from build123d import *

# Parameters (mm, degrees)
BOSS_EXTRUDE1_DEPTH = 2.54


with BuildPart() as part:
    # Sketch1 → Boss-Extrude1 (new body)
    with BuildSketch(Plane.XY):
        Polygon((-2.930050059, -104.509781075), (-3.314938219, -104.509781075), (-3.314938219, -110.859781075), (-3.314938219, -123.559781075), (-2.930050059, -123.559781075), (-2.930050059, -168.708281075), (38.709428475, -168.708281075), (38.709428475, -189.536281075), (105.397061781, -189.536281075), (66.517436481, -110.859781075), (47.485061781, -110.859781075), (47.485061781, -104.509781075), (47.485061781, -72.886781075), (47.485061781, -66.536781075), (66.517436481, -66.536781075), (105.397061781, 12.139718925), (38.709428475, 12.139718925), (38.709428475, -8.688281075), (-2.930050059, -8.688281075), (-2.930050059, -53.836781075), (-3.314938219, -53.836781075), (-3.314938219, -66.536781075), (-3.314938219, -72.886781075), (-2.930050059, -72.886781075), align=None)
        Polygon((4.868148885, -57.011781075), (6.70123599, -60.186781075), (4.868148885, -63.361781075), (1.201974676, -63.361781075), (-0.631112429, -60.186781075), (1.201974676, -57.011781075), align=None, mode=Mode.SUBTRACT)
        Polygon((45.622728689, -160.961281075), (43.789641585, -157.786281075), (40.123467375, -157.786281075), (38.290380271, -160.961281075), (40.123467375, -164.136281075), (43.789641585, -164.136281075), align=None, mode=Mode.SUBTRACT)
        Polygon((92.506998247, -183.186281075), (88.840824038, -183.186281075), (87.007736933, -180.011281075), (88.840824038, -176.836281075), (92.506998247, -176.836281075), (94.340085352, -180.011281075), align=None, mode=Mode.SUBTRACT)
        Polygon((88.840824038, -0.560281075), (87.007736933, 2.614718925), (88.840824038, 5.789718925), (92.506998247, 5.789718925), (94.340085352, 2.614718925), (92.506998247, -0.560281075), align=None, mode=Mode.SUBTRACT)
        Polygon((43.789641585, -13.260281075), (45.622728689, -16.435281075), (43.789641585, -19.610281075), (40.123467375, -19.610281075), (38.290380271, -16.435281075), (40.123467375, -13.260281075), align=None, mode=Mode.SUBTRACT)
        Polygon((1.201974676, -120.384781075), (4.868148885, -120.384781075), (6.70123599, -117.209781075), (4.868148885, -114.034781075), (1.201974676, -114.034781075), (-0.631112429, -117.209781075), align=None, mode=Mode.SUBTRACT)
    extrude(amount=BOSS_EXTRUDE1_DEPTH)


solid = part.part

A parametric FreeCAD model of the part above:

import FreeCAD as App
import Part
import Sketcher
Q = App.Units.Quantity

doc = App.newDocument("Part")
body = doc.addObject("PartDesign::Body", "Body")

# Sketch on XY plane
sketch1 = doc.addObject("Sketcher::SketchObject", "Sketch")
body.addObject(sketch1)
sketch1.AttachmentSupport = (doc.XY_Plane, [""])
sketch1.MapMode = "FlatFace"
sketch1.addGeometry([
    Part.LineSegment(App.Vector(-2.93, -104.51, 0), App.Vector(-3.31, -104.51, 0)),  # 0
    Part.LineSegment(App.Vector(-3.31, -104.51, 0), App.Vector(-3.31, -123.56, 0)),  # 1
    Part.LineSegment(App.Vector(-3.31, -123.56, 0), App.Vector(-2.93, -123.56, 0)),  # 2
    Part.LineSegment(App.Vector(-2.93, -123.56, 0), App.Vector(-2.93, -168.71, 0)),  # 3
    Part.LineSegment(App.Vector(-2.93, -168.71, 0), App.Vector(38.71, -168.71, 0)),  # 4
    Part.LineSegment(App.Vector(38.71, -168.71, 0), App.Vector(38.71, -189.54, 0)),  # 5
    Part.LineSegment(App.Vector(38.71, -189.54, 0), App.Vector(105.4, -189.54, 0)),  # 6
    Part.LineSegment(App.Vector(105.4, -189.54, 0), App.Vector(66.52, -110.86, 0)),  # 7
    Part.LineSegment(App.Vector(66.52, -110.86, 0), App.Vector(47.49, -110.86, 0)),  # 8
    Part.LineSegment(App.Vector(47.49, -110.86, 0), App.Vector(47.49, -66.54, 0)),  # 9
    Part.LineSegment(App.Vector(47.49, -66.54, 0), App.Vector(66.52, -66.54, 0)),  # 10
    Part.LineSegment(App.Vector(66.52, -66.54, 0), App.Vector(105.4, 12.14, 0)),  # 11
    Part.LineSegment(App.Vector(105.4, 12.14, 0), App.Vector(38.71, 12.14, 0)),  # 12
    Part.LineSegment(App.Vector(38.71, 12.14, 0), App.Vector(38.71, -8.69, 0)),  # 13
    Part.LineSegment(App.Vector(38.71, -8.69, 0), App.Vector(-2.93, -8.69, 0)),  # 14
    Part.LineSegment(App.Vector(-2.93, -8.69, 0), App.Vector(-2.93, -53.84, 0)),  # 15
    Part.LineSegment(App.Vector(-2.93, -53.84, 0), App.Vector(-3.31, -53.84, 0)),  # 16
    Part.LineSegment(App.Vector(-3.31, -53.84, 0), App.Vector(-3.31, -72.89, 0)),  # 17
    Part.LineSegment(App.Vector(-3.31, -72.89, 0), App.Vector(-2.93, -72.89, 0)),  # 18
    Part.LineSegment(App.Vector(-2.93, -72.89, 0), App.Vector(-2.93, -104.51, 0)),  # 19
    Part.LineSegment(App.Vector(43.79, -157.79, 0), App.Vector(45.62, -160.96, 0)),  # 20
    Part.LineSegment(App.Vector(45.62, -160.96, 0), App.Vector(43.79, -164.14, 0)),  # 21
    Part.LineSegment(App.Vector(43.79, -164.14, 0), App.Vector(40.12, -164.14, 0)),  # 22
    Part.LineSegment(App.Vector(40.12, -164.14, 0), App.Vector(38.29, -160.96, 0)),  # 23
    Part.LineSegment(App.Vector(38.29, -160.96, 0), App.Vector(40.12, -157.79, 0)),  # 24
    Part.LineSegment(App.Vector(40.12, -157.79, 0), App.Vector(43.79, -157.79, 0)),  # 25
    Part.LineSegment(App.Vector(4.87, -120.38, 0), App.Vector(1.2, -120.38, 0)),  # 26
    Part.LineSegment(App.Vector(1.2, -120.38, 0), App.Vector(-0.63, -117.21, 0)),  # 27
    Part.LineSegment(App.Vector(-0.63, -117.21, 0), App.Vector(1.2, -114.03, 0)),  # 28
    Part.LineSegment(App.Vector(1.2, -114.03, 0), App.Vector(4.87, -114.03, 0)),  # 29
    Part.LineSegment(App.Vector(4.87, -114.03, 0), App.Vector(6.7, -117.21, 0)),  # 30
    Part.LineSegment(App.Vector(6.7, -117.21, 0), App.Vector(4.87, -120.38, 0)),  # 31
    Part.LineSegment(App.Vector(94.34, -180.01, 0), App.Vector(92.51, -183.19, 0)),  # 32
    Part.LineSegment(App.Vector(92.51, -183.19, 0), App.Vector(88.84, -183.19, 0)),  # 33
    Part.LineSegment(App.Vector(88.84, -183.19, 0), App.Vector(87.01, -180.01, 0)),  # 34
    Part.LineSegment(App.Vector(87.01, -180.01, 0), App.Vector(88.84, -176.84, 0)),  # 35
    Part.LineSegment(App.Vector(88.84, -176.84, 0), App.Vector(92.51, -176.84, 0)),  # 36
    Part.LineSegment(App.Vector(92.51, -176.84, 0), App.Vector(94.34, -180.01, 0)),  # 37
    Part.LineSegment(App.Vector(1.2, -57.01, 0), App.Vector(4.87, -57.01, 0)),  # 38
    Part.LineSegment(App.Vector(4.87, -57.01, 0), App.Vector(6.7, -60.19, 0)),  # 39
    Part.LineSegment(App.Vector(6.7, -60.19, 0), App.Vector(4.87, -63.36, 0)),  # 40
    Part.LineSegment(App.Vector(4.87, -63.36, 0), App.Vector(1.2, -63.36, 0)),  # 41
    Part.LineSegment(App.Vector(1.2, -63.36, 0), App.Vector(-0.63, -60.19, 0)),  # 42
    Part.LineSegment(App.Vector(-0.63, -60.19, 0), App.Vector(1.2, -57.01, 0)),  # 43
    Part.LineSegment(App.Vector(40.12, -13.26, 0), App.Vector(43.79, -13.26, 0)),  # 44
    Part.LineSegment(App.Vector(43.79, -13.26, 0), App.Vector(45.62, -16.44, 0)),  # 45
    Part.LineSegment(App.Vector(45.62, -16.44, 0), App.Vector(43.79, -19.61, 0)),  # 46
    Part.LineSegment(App.Vector(43.79, -19.61, 0), App.Vector(40.12, -19.61, 0)),  # 47
    Part.LineSegment(App.Vector(40.12, -19.61, 0), App.Vector(38.29, -16.44, 0)),  # 48
    Part.LineSegment(App.Vector(38.29, -16.44, 0), App.Vector(40.12, -13.26, 0)),  # 49
    Part.LineSegment(App.Vector(92.51, -0.56, 0), App.Vector(88.84, -0.56, 0)),  # 50
    Part.LineSegment(App.Vector(88.84, -0.56, 0), App.Vector(87.01, 2.61, 0)),  # 51
    Part.LineSegment(App.Vector(87.01, 2.61, 0), App.Vector(88.84, 5.79, 0)),  # 52
    Part.LineSegment(App.Vector(88.84, 5.79, 0), App.Vector(92.51, 5.79, 0)),  # 53
    Part.LineSegment(App.Vector(92.51, 5.79, 0), App.Vector(94.34, 2.61, 0)),  # 54
    Part.LineSegment(App.Vector(94.34, 2.61, 0), App.Vector(92.51, -0.56, 0)),  # 55
], False)
sketch1.addConstraint([
    Sketcher.Constraint("Coincident", 0, 2, 1, 1),
    Sketcher.Constraint("Coincident", 1, 2, 2, 1),
    Sketcher.Constraint("Coincident", 2, 2, 3, 1),
    Sketcher.Constraint("Coincident", 3, 2, 4, 1),
    Sketcher.Constraint("Coincident", 4, 2, 5, 1),
    Sketcher.Constraint("Coincident", 5, 2, 6, 1),
    Sketcher.Constraint("Coincident", 6, 2, 7, 1),
    Sketcher.Constraint("Coincident", 7, 2, 8, 1),
    Sketcher.Constraint("Coincident", 8, 2, 9, 1),
    Sketcher.Constraint("Coincident", 9, 2, 10, 1),
    Sketcher.Constraint("Coincident", 10, 2, 11, 1),
    Sketcher.Constraint("Coincident", 11, 2, 12, 1),
    Sketcher.Constraint("Coincident", 12, 2, 13, 1),
    Sketcher.Constraint("Coincident", 13, 2, 14, 1),
    Sketcher.Constraint("Coincident", 14, 2, 15, 1),
    Sketcher.Constraint("Coincident", 15, 2, 16, 1),
    Sketcher.Constraint("Coincident", 16, 2, 17, 1),
    Sketcher.Constraint("Coincident", 17, 2, 18, 1),
    Sketcher.Constraint("Coincident", 18, 2, 19, 1),
    Sketcher.Constraint("Coincident", 19, 2, 0, 1),
    Sketcher.Constraint("Coincident", 20, 2, 21, 1),
    Sketcher.Constraint("Coincident", 21, 2, 22, 1),
    Sketcher.Constraint("Coincident", 22, 2, 23, 1),
    Sketcher.Constraint("Coincident", 23, 2, 24, 1),
    Sketcher.Constraint("Coincident", 24, 2, 25, 1),
    Sketcher.Constraint("Coincident", 25, 2, 20, 1),
    Sketcher.Constraint("Coincident", 26, 2, 27, 1),
    Sketcher.Constraint("Coincident", 27, 2, 28, 1),
    Sketcher.Constraint("Coincident", 28, 2, 29, 1),
    Sketcher.Constraint("Coincident", 29, 2, 30, 1),
    Sketcher.Constraint("Coincident", 30, 2, 31, 1),
    Sketcher.Constraint("Coincident", 31, 2, 26, 1),
    Sketcher.Constraint("Coincident", 32, 2, 33, 1),
    Sketcher.Constraint("Coincident", 33, 2, 34, 1),
    Sketcher.Constraint("Coincident", 34, 2, 35, 1),
    Sketcher.Constraint("Coincident", 35, 2, 36, 1),
    Sketcher.Constraint("Coincident", 36, 2, 37, 1),
    Sketcher.Constraint("Coincident", 37, 2, 32, 1),
    Sketcher.Constraint("Coincident", 38, 2, 39, 1),
    Sketcher.Constraint("Coincident", 39, 2, 40, 1),
    Sketcher.Constraint("Coincident", 40, 2, 41, 1),
    Sketcher.Constraint("Coincident", 41, 2, 42, 1),
    Sketcher.Constraint("Coincident", 42, 2, 43, 1),
    Sketcher.Constraint("Coincident", 43, 2, 38, 1),
    Sketcher.Constraint("Coincident", 44, 2, 45, 1),
    Sketcher.Constraint("Coincident", 45, 2, 46, 1),
    Sketcher.Constraint("Coincident", 46, 2, 47, 1),
    Sketcher.Constraint("Coincident", 47, 2, 48, 1),
    Sketcher.Constraint("Coincident", 48, 2, 49, 1),
    Sketcher.Constraint("Coincident", 49, 2, 44, 1),
    Sketcher.Constraint("Coincident", 50, 2, 51, 1),
    Sketcher.Constraint("Coincident", 51, 2, 52, 1),
    Sketcher.Constraint("Coincident", 52, 2, 53, 1),
    Sketcher.Constraint("Coincident", 53, 2, 54, 1),
    Sketcher.Constraint("Coincident", 54, 2, 55, 1),
    Sketcher.Constraint("Coincident", 55, 2, 50, 1),
    Sketcher.Constraint("Horizontal", 0),
    Sketcher.Constraint("Vertical", 1),
    Sketcher.Constraint("Horizontal", 2),
    Sketcher.Constraint("Vertical", 3),
    Sketcher.Constraint("Horizontal", 4),
    Sketcher.Constraint("Vertical", 5),
    Sketcher.Constraint("Horizontal", 6),
    Sketcher.Constraint("Horizontal", 8),
    Sketcher.Constraint("Vertical", 9),
    Sketcher.Constraint("Horizontal", 10),
    Sketcher.Constraint("Horizontal", 12),
    Sketcher.Constraint("Vertical", 13),
    Sketcher.Constraint("Horizontal", 14),
    Sketcher.Constraint("Vertical", 15),
    Sketcher.Constraint("Horizontal", 16),
    Sketcher.Constraint("Vertical", 17),
    Sketcher.Constraint("Horizontal", 18),
    Sketcher.Constraint("Vertical", 19),
    Sketcher.Constraint("Horizontal", 22),
    Sketcher.Constraint("Horizontal", 25),
    Sketcher.Constraint("Horizontal", 26),
    Sketcher.Constraint("Horizontal", 29),
    Sketcher.Constraint("Horizontal", 33),
    Sketcher.Constraint("Horizontal", 36),
    Sketcher.Constraint("Horizontal", 38),
    Sketcher.Constraint("Horizontal", 41),
    Sketcher.Constraint("Horizontal", 44),
    Sketcher.Constraint("Horizontal", 47),
    Sketcher.Constraint("Horizontal", 50),
    Sketcher.Constraint("Horizontal", 53),
    Sketcher.Constraint("Parallel", 20, 23),
    Sketcher.Constraint("Parallel", 21, 24),
    Sketcher.Constraint("Parallel", 23, 27),
    Sketcher.Constraint("Parallel", 24, 28),
    Sketcher.Constraint("Parallel", 27, 30),
    Sketcher.Constraint("Parallel", 28, 31),
    Sketcher.Constraint("Parallel", 31, 32),
    Sketcher.Constraint("Parallel", 30, 34),
    Sketcher.Constraint("Parallel", 32, 35),
    Sketcher.Constraint("Parallel", 34, 37),
    Sketcher.Constraint("Parallel", 37, 39),
    Sketcher.Constraint("Parallel", 35, 40),
    Sketcher.Constraint("Parallel", 39, 42),
    Sketcher.Constraint("Parallel", 40, 43),
    Sketcher.Constraint("Parallel", 42, 45),
    Sketcher.Constraint("Parallel", 43, 46),
    Sketcher.Constraint("Parallel", 45, 48),
    Sketcher.Constraint("Parallel", 46, 49),
    Sketcher.Constraint("Parallel", 48, 51),
    Sketcher.Constraint("Parallel", 49, 52),
    Sketcher.Constraint("Parallel", 51, 54),
    Sketcher.Constraint("Parallel", 52, 55),
    Sketcher.Constraint("Horizontal", 20, 2, 23, 2),
    Sketcher.Constraint("Horizontal", 27, 2, 30, 2),
    Sketcher.Constraint("Horizontal", 34, 2, 37, 2),
    Sketcher.Constraint("Horizontal", 39, 2, 42, 2),
    Sketcher.Constraint("Horizontal", 45, 2, 48, 2),
    Sketcher.Constraint("Horizontal", 51, 2, 54, 2),
    Sketcher.Constraint("Vertical", 7, 2, 10, 2),
    Sketcher.Constraint("Vertical", 6, 2, 11, 2),
    Sketcher.Constraint("Vertical", 5, 2, 12, 2),
    Sketcher.Constraint("Vertical", 3, 2, 14, 2),
    Sketcher.Constraint("Vertical", 1, 2, 16, 2),
    Sketcher.Constraint("Vertical", 15, 2, 18, 2),
    Sketcher.Constraint("Vertical", 22, 2, 24, 2),
    Sketcher.Constraint("Vertical", 21, 2, 25, 2),
    Sketcher.Constraint("Vertical", 26, 2, 28, 2),
    Sketcher.Constraint("Vertical", 33, 2, 35, 2),
    Sketcher.Constraint("Vertical", 31, 2, 38, 2),
    Sketcher.Constraint("Vertical", 30, 2, 39, 2),
    Sketcher.Constraint("Vertical", 38, 2, 40, 2),
    Sketcher.Constraint("Vertical", 28, 2, 41, 2),
    Sketcher.Constraint("Vertical", 25, 2, 44, 2),
    Sketcher.Constraint("Vertical", 20, 2, 45, 2),
    Sketcher.Constraint("Vertical", 44, 2, 46, 2),
    Sketcher.Constraint("Vertical", 24, 2, 47, 2),
    Sketcher.Constraint("Vertical", 35, 2, 50, 2),
    Sketcher.Constraint("Vertical", 34, 2, 51, 2),
    Sketcher.Constraint("Vertical", 50, 2, 52, 2),
    Sketcher.Constraint("Vertical", 36, 2, 53, 2),
    Sketcher.Constraint("Equal", 25, 26),
    Sketcher.Constraint("Equal", 29, 33),
    Sketcher.Constraint("Equal", 5, 13),
    Sketcher.Constraint("Equal", 3, 15),
    Sketcher.Constraint("Equal", 1, 17),
    Sketcher.Constraint("Equal", 7, 11),
    Sketcher.Constraint("Equal", 24, 27),
    Sketcher.Constraint("Equal", 31, 32),
    Sketcher.Constraint("Angle", 20, Q("-60 deg")),
    Sketcher.Constraint("DistanceX", 0, 2, 8, 2, Q("2 in")),
    Sketcher.Constraint("DistanceY", 5, 2, 21, 2, Q("1 in")),
    Sketcher.Constraint("DistanceY", 32, 2, 25, 2, Q("1 in")),
    Sketcher.Constraint("DistanceY", 44, 2, 12, 2, Q("1 in")),
    Sketcher.Constraint("DistanceY", 1, 2, 1, 1, Q("0.75 in")),
    Sketcher.Constraint("DistanceY", 5, 2, 5, 1, Q("0.82 in")),
    Sketcher.Constraint("DistanceY", 2, 2, 7, 2, Q("0.5 in")),
    Sketcher.Constraint("DistanceY", 27, 2, 19, 2, Q("0.5 in")),
    Sketcher.Constraint("DistanceY", 6, 2, 35, 2, Q("0.5 in")),
    Sketcher.Constraint("DistanceY", 18, 2, 39, 2, Q("0.5 in")),
    Sketcher.Constraint("DistanceY", 50, 2, 11, 2, Q("0.5 in")),
    Sketcher.Constraint("DistanceY", 9, 1, 9, 2, Q("1.745 in")),
    Sketcher.Constraint("DistanceX", 1, 2, 6, 2, Q("4.28 in")),
    Sketcher.Constraint("DistanceY", 3, 2, 3, 1, Q("1.7775 in")),
    Sketcher.Constraint("DistanceX", 20, 2, 33, 2, Q("1.7014998 in")),
    Sketcher.Constraint("DistanceX", 0, 2, 0, 1, Q("0.384888 mm")),
    Sketcher.Constraint("DistanceX", 4, 1, 4, 2, Q("41.639479 mm")),
    Sketcher.Constraint("DistanceX", -1, 1, 32, 2, Q("92.506998 mm")),
    Sketcher.Constraint("DistanceX", 4, 2, 20, 2, Q("6.9133 mm")),
    Sketcher.Constraint("DistanceX", 19, 2, 29, 2, Q("7.798199 mm")),
    Sketcher.Constraint("DistanceX", 8, 2, 8, 1, Q("19.032375 mm")),
    Sketcher.Constraint("DistanceX", 22, 2, 22, 1, Q("3.666174 mm")),
    Sketcher.Constraint("DistanceY", 0, 2, -1, 1, Q("104.509781 mm")),
])
pad1 = doc.addObject("PartDesign::Pad", "Pad")
body.addObject(pad1)
pad1.Profile = sketch1
pad1.Length = Q("0.1 in")

doc.recompute()
